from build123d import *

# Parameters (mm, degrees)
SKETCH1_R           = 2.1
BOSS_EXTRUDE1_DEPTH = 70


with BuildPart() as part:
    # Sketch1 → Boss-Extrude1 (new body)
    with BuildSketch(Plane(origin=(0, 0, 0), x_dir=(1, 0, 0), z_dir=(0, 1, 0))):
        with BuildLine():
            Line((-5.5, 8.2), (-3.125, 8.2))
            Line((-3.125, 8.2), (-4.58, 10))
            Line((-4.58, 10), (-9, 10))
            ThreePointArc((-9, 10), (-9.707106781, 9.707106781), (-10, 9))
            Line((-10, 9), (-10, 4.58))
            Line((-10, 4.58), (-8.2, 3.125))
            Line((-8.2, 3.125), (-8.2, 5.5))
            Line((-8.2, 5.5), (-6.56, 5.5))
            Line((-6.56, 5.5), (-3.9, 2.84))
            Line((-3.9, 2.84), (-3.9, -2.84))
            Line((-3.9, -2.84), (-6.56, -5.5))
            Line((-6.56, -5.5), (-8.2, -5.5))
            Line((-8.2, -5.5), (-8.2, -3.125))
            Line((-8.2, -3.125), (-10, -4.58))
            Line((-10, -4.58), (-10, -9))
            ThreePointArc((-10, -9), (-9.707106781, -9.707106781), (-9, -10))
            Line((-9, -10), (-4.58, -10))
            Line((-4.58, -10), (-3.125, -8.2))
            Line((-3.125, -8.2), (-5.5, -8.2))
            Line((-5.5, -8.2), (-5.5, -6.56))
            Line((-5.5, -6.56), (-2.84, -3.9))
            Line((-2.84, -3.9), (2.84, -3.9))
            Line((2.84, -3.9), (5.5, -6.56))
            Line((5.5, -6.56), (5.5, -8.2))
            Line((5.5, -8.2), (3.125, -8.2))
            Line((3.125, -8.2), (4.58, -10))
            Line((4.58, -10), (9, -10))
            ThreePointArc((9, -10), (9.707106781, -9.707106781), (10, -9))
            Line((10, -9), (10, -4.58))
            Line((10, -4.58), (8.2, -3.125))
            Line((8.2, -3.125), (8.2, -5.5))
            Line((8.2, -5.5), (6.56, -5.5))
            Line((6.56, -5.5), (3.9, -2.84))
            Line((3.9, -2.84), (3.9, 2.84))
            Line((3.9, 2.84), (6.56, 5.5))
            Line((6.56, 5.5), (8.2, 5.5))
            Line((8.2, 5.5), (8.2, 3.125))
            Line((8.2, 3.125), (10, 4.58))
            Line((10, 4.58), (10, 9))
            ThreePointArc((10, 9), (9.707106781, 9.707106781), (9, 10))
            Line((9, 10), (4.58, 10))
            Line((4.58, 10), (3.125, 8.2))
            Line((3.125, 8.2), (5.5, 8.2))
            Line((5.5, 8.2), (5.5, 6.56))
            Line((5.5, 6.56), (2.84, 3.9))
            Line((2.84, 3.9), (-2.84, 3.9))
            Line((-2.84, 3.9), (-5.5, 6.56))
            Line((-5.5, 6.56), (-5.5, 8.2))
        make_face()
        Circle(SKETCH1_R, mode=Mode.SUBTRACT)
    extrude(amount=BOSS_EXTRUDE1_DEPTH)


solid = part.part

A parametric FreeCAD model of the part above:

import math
import FreeCAD as App
import Part
import Sketcher
from FreeCAD import Vector
Q = App.Units.Quantity

doc = App.newDocument("Part")
params = doc.addObject("Spreadsheet::Sheet", "Params")
for row, (alias, value) in enumerate([
    ("sketch1_radius", "1 mm"),
    ("sketch1_diameter", "4.2 mm"),
    ("sketch1_width", "4.42 mm"),
    ("sketch1_width2", "1.64 mm"),
    ("sketch1_width3", "5.68 mm"),
    ("pad1_length", "70 mm"),
], start=1):
    params.set(f"A{row}", alias)
    params.set(f"B{row}", "=" + value)
    params.setAlias(f"B{row}", alias)

body = doc.addObject("PartDesign::Body", "Body")

# Sketch on XZ plane
sketch1 = body.newObject("Sketcher::SketchObject", "Sketch")
sketch1.AttachmentSupport = (doc.getObject("XZ_Plane"), [""])
sketch1.MapMode = "FlatFace"
sketch1.addGeometry(Part.LineSegment(Vector(-5.5, -8.2, 0), Vector(-3.125, -8.2, 0)), False)
sketch1.addGeometry(Part.LineSegment(Vector(-3.125, -8.2, 0), Vector(-4.58, -10, 0)), False)
sketch1.addGeometry(Part.LineSegment(Vector(-4.58, -10, 0), Vector(-9, -10, 0)), False)
sketch1.addGeometry(Part.ArcOfCircle(Part.Circle(Vector(-9, -9, 0), Vector(0, 0, 1), 1), math.radians(-180), math.radians(-90)), False)
sketch1.addGeometry(Part.LineSegment(Vector(-10, -9, 0), Vector(-10, -4.58, 0)), False)
sketch1.addGeometry(Part.LineSegment(Vector(-10, -4.58, 0), Vector(-8.2, -3.125, 0)), False)
sketch1.addGeometry(Part.LineSegment(Vector(-8.2, -3.125, 0), Vector(-8.2, -5.5, 0)), False)
sketch1.addGeometry(Part.LineSegment(Vector(-8.2, -5.5, 0), Vector(-6.56, -5.5, 0)), False)
sketch1.addGeometry(Part.LineSegment(Vector(-6.56, -5.5, 0), Vector(-3.9, -2.84, 0)), False)
sketch1.addGeometry(Part.LineSegment(Vector(-3.9, -2.84, 0), Vector(-3.9, 2.84, 0)), False)
sketch1.addGeometry(Part.LineSegment(Vector(-3.9, 2.84, 0), Vector(-6.56, 5.5, 0)), False)
sketch1.addGeometry(Part.LineSegment(Vector(-6.56, 5.5, 0), Vector(-8.2, 5.5, 0)), False)
sketch1.addGeometry(Part.LineSegment(Vector(-8.2, 5.5, 0), Vector(-8.2, 3.125, 0)), False)
sketch1.addGeometry(Part.LineSegment(Vector(-8.2, 3.125, 0), Vector(-10, 4.58, 0)), False)
sketch1.addGeometry(Part.LineSegment(Vector(-10, 4.58, 0), Vector(-10, 9, 0)), False)
sketch1.addGeometry(Part.ArcOfCircle(Part.Circle(Vector(-9, 9, 0), Vector(0, 0, 1), 1), math.radians(90), math.radians(180)), False)
sketch1.addGeometry(Part.LineSegment(Vector(-9, 10, 0), Vector(-4.58, 10, 0)), False)
sketch1.addGeometry(Part.LineSegment(Vector(-4.58, 10, 0), Vector(-3.125, 8.2, 0)), False)
sketch1.addGeometry(Part.LineSegment(Vector(-3.125, 8.2, 0), Vector(-5.5, 8.2, 0)), False)
sketch1.addGeometry(Part.LineSegment(Vector(-5.5, 8.2, 0), Vector(-5.5, 6.56, 0)), False)
sketch1.addGeometry(Part.LineSegment(Vector(-5.5, 6.56, 0), Vector(-2.84, 3.9, 0)), False)
sketch1.addGeometry(Part.LineSegment(Vector(-2.84, 3.9, 0), Vector(2.84, 3.9, 0)), False)
sketch1.addGeometry(Part.LineSegment(Vector(2.84, 3.9, 0), Vector(5.5, 6.56, 0)), False)
sketch1.addGeometry(Part.LineSegment(Vector(5.5, 6.56, 0), Vector(5.5, 8.2, 0)), False)
sketch1.addGeometry(Part.LineSegment(Vector(5.5, 8.2, 0), Vector(3.125, 8.2, 0)), False)
sketch1.addGeometry(Part.LineSegment(Vector(3.125, 8.2, 0), Vector(4.58, 10, 0)), False)
sketch1.addGeometry(Part.LineSegment(Vector(4.58, 10, 0), Vector(9, 10, 0)), False)
sketch1.addGeometry(Part.ArcOfCircle(Part.Circle(Vector(9, 9, 0), Vector(0, 0, 1), 1), math.radians(0), math.radians(90)), False)
sketch1.addGeometry(Part.LineSegment(Vector(10, 9, 0), Vector(10, 4.58, 0)), False)
sketch1.addGeometry(Part.LineSegment(Vector(10, 4.58, 0), Vector(8.2, 3.125, 0)), False)
sketch1.addGeometry(Part.LineSegment(Vector(8.2, 3.125, 0), Vector(8.2, 5.5, 0)), False)
sketch1.addGeometry(Part.LineSegment(Vector(8.2, 5.5, 0), Vector(6.56, 5.5, 0)), False)
sketch1.addGeometry(Part.LineSegment(Vector(6.56, 5.5, 0), Vector(3.9, 2.84, 0)), False)
sketch1.addGeometry(Part.LineSegment(Vector(3.9, 2.84, 0), Vector(3.9, -2.84, 0)), False)
sketch1.addGeometry(Part.LineSegment(Vector(3.9, -2.84, 0), Vector(6.56, -5.5, 0)), False)
sketch1.addGeometry(Part.LineSegment(Vector(6.56, -5.5, 0), Vector(8.2, -5.5, 0)), False)
sketch1.addGeometry(Part.LineSegment(Vector(8.2, -5.5, 0), Vector(8.2, -3.125, 0)), False)
sketch1.addGeometry(Part.LineSegment(Vector(8.2, -3.125, 0), Vector(10, -4.58, 0)), False)
sketch1.addGeometry(Part.LineSegment(Vector(10, -4.58, 0), Vector(10, -9, 0)), False)
sketch1.addGeometry(Part.ArcOfCircle(Part.Circle(Vector(9, -9, 0), Vector(0, 0, 1), 1), math.radians(-90), math.radians(0)), False)
sketch1.addGeometry(Part.LineSegment(Vector(9, -10, 0), Vector(4.58, -10, 0)), False)
sketch1.addGeometry(Part.LineSegment(Vector(4.58, -10, 0), Vector(3.125, -8.2, 0)), False)
sketch1.addGeometry(Part.LineSegment(Vector(3.125, -8.2, 0), Vector(5.5, -8.2, 0)), False)
sketch1.addGeometry(Part.LineSegment(Vector(5.5, -8.2, 0), Vector(5.5, -6.56, 0)), False)
sketch1.addGeometry(Part.LineSegment(Vector(5.5, -6.56, 0), Vector(2.84, -3.9, 0)), False)
sketch1.addGeometry(Part.LineSegment(Vector(2.84, -3.9, 0), Vector(-2.84, -3.9, 0)), False)
sketch1.addGeometry(Part.LineSegment(Vector(-2.84, -3.9, 0), Vector(-5.5, -6.56, 0)), False)
sketch1.addGeometry(Part.LineSegment(Vector(-5.5, -6.56, 0), Vector(-5.5, -8.2, 0)), False)
sketch1.addGeometry(Part.Circle(Vector(0, 0, 0), Vector(0, 0, 1), 2.1), False)
sketch1.addConstraint(Sketcher.Constraint("Coincident", 0, 2, 1, 1))
sketch1.addConstraint(Sketcher.Constraint("Coincident", 1, 2, 2, 1))
sketch1.addConstraint(Sketcher.Constraint("Tangent", 2, 2, 3, 2))
sketch1.addConstraint(Sketcher.Constraint("Tangent", 3, 1, 4, 1))
sketch1.addConstraint(Sketcher.Constraint("Coincident", 4, 2, 5, 1))
sketch1.addConstraint(Sketcher.Constraint("Coincident", 5, 2, 6, 1))
sketch1.addConstraint(Sketcher.Constraint("Coincident", 6, 2, 7, 1))
sketch1.addConstraint(Sketcher.Constraint("Coincident", 7, 2, 8, 1))
sketch1.addConstraint(Sketcher.Constraint("Coincident", 8, 2, 9, 1))
sketch1.addConstraint(Sketcher.Constraint("Coincident", 9, 2, 10, 1))
sketch1.addConstraint(Sketcher.Constraint("Coincident", 10, 2, 11, 1))
sketch1.addConstraint(Sketcher.Constraint("Coincident", 11, 2, 12, 1))
sketch1.addConstraint(Sketcher.Constraint("Coincident", 12, 2, 13, 1))
sketch1.addConstraint(Sketcher.Constraint("Coincident", 13, 2, 14, 1))
sketch1.addConstraint(Sketcher.Constraint("Tangent", 14, 2, 15, 2))
sketch1.addConstraint(Sketcher.Constraint("Tangent", 15, 1, 16, 1))
sketch1.addConstraint(Sketcher.Constraint("Coincident", 16, 2, 17, 1))
sketch1.addConstraint(Sketcher.Constraint("Coincident", 17, 2, 18, 1))
sketch1.addConstraint(Sketcher.Constraint("Coincident", 18, 2, 19, 1))
sketch1.addConstraint(Sketcher.Constraint("Coincident", 19, 2, 20, 1))
sketch1.addConstraint(Sketcher.Constraint("Coincident", 20, 2, 21, 1))
sketch1.addConstraint(Sketcher.Constraint("Coincident", 21, 2, 22, 1))
sketch1.addConstraint(Sketcher.Constraint("Coincident", 22, 2, 23, 1))
sketch1.addConstraint(Sketcher.Constraint("Coincident", 23, 2, 24, 1))
sketch1.addConstraint(Sketcher.Constraint("Coincident", 24, 2, 25, 1))
sketch1.addConstraint(Sketcher.Constraint("Coincident", 25, 2, 26, 1))
sketch1.addConstraint(Sketcher.Constraint("Tangent", 26, 2, 27, 2))
sketch1.addConstraint(Sketcher.Constraint("Tangent", 27, 1, 28, 1))
sketch1.addConstraint(Sketcher.Constraint("Coincident", 28, 2, 29, 1))
sketch1.addConstraint(Sketcher.Constraint("Coincident", 29, 2, 30, 1))
sketch1.addConstraint(Sketcher.Constraint("Coincident", 30, 2, 31, 1))
sketch1.addConstraint(Sketcher.Constraint("Coincident", 31, 2, 32, 1))
sketch1.addConstraint(Sketcher.Constraint("Coincident", 32, 2, 33, 1))
sketch1.addConstraint(Sketcher.Constraint("Coincident", 33, 2, 34, 1))
sketch1.addConstraint(Sketcher.Constraint("Coincident", 34, 2, 35, 1))
sketch1.addConstraint(Sketcher.Constraint("Coincident", 35, 2, 36, 1))
sketch1.addConstraint(Sketcher.Constraint("Coincident", 36, 2, 37, 1))
sketch1.addConstraint(Sketcher.Constraint("Coincident", 37, 2, 38, 1))
sketch1.addConstraint(Sketcher.Constraint("Tangent", 38, 2, 39, 2))
sketch1.addConstraint(Sketcher.Constraint("Tangent", 39, 1, 40, 1))
sketch1.addConstraint(Sketcher.Constraint("Coincident", 40, 2, 41, 1))
sketch1.addConstraint(Sketcher.Constraint("Coincident", 41, 2, 42, 1))
sketch1.addConstraint(Sketcher.Constraint("Coincident", 42, 2, 43, 1))
sketch1.addConstraint(Sketcher.Constraint("Coincident", 43, 2, 44, 1))
sketch1.addConstraint(Sketcher.Constraint("Coincident", 44, 2, 45, 1))
sketch1.addConstraint(Sketcher.Constraint("Coincident", 45, 2, 46, 1))
sketch1.addConstraint(Sketcher.Constraint("Coincident", 46, 2, 47, 1))
sketch1.addConstraint(Sketcher.Constraint("Coincident", 47, 2, 0, 1))
sketch1.addConstraint(Sketcher.Constraint("Horizontal", 0))
sketch1.addConstraint(Sketcher.Constraint("Horizontal", 2))
sketch1.addConstraint(Sketcher.Constraint("Vertical", 4))
sketch1.addConstraint(Sketcher.Constraint("Vertical", 6))
sketch1.addConstraint(Sketcher.Constraint("Horizontal", 7))
sketch1.addConstraint(Sketcher.Constraint("Vertical", 9))
sketch1.addConstraint(Sketcher.Constraint("Horizontal", 11))
sketch1.addConstraint(Sketcher.Constraint("Vertical", 12))
sketch1.addConstraint(Sketcher.Constraint("Vertical", 14))
sketch1.addConstraint(Sketcher.Constraint("Horizontal", 16))
sketch1.addConstraint(Sketcher.Constraint("Horizontal", 18))
sketch1.addConstraint(Sketcher.Constraint("Vertical", 19))
sketch1.addConstraint(Sketcher.Constraint("Horizontal", 21))
sketch1.addConstraint(Sketcher.Constraint("Vertical", 23))
sketch1.addConstraint(Sketcher.Constraint("Horizontal", 24))
sketch1.addConstraint(Sketcher.Constraint("Horizontal", 26))
sketch1.addConstraint(Sketcher.Constraint("Vertical", 28))
sketch1.addConstraint(Sketcher.Constraint("Vertical", 30))
sketch1.addConstraint(Sketcher.Constraint("Horizontal", 31))
sketch1.addConstraint(Sketcher.Constraint("Vertical", 33))
sketch1.addConstraint(Sketcher.Constraint("Horizontal", 35))
sketch1.addConstraint(Sketcher.Constraint("Vertical", 36))
sketch1.addConstraint(Sketcher.Constraint("Vertical", 38))
sketch1.addConstraint(Sketcher.Constraint("Horizontal", 40))
sketch1.addConstraint(Sketcher.Constraint("Horizontal", 42))
sketch1.addConstraint(Sketcher.Constraint("Vertical", 43))
sketch1.addConstraint(Sketcher.Constraint("Horizontal", 45))
sketch1.addConstraint(Sketcher.Constraint("Vertical", 47))
sketch1.addConstraint(Sketcher.Constraint("Coincident", 48, 3, -1, 1))
sketch1.addConstraint(Sketcher.Constraint("Equal", 3, 15))
sketch1.addConstraint(Sketcher.Constraint("Equal", 15, 27))
sketch1.addConstraint(Sketcher.Constraint("Equal", 27, 39))
sketch1.addConstraint(Sketcher.Constraint("Symmetric", 3, 3, 27, 3, -1, 1))
sketch1.addConstraint(Sketcher.Constraint("Symmetric", 15, 3, 39, 3, -1, 1))
sketch1.addConstraint(Sketcher.Constraint("Symmetric", 0, 2, 24, 2, -1, 1))
sketch1.addConstraint(Sketcher.Constraint("Symmetric", 5, 2, 29, 2, -1, 1))
sketch1.addConstraint(Sketcher.Constraint("Symmetric", 7, 2, 31, 2, -1, 1))
sketch1.addConstraint(Sketcher.Constraint("Symmetric", 8, 2, 32, 2, -1, 1))
sketch1.addConstraint(Sketcher.Constraint("Symmetric", 10, 2, 34, 2, -1, 1))
sketch1.addConstraint(Sketcher.Constraint("Symmetric", 12, 2, 36, 2, -1, 1))
sketch1.addConstraint(Sketcher.Constraint("Symmetric", 17, 2, 41, 2, -1, 1))
sketch1.addConstraint(Sketcher.Constraint("Symmetric", 19, 2, 43, 2, -1, 1))
sketch1.addConstraint(Sketcher.Constraint("Symmetric", 20, 2, 44, 2, -1, 1))
sketch1.addConstraint(Sketcher.Constraint("Symmetric", 22, 2, 46, 2, -1, 1))
sketch1.addConstraint(Sketcher.Constraint("Symmetric", 15, 3, 27, 3, -2))
sketch1.addConstraint(Sketcher.Constraint("Symmetric", 19, 2, 22, 2, -2))
sketch1.addConstraint(Sketcher.Constraint("Symmetric", 17, 2, 24, 2, -2))
sketch1.addConstraint(Sketcher.Constraint("Symmetric", 12, 2, 29, 2, -2))
sketch1.addConstraint(Sketcher.Constraint("Symmetric", 10, 2, 31, 2, -2))
sketch1.addConstraint(Sketcher.Constraint("Perpendicular", 8, 10))
sketch1.addConstraint(Sketcher.Constraint("Perpendicular", 1, 13))
sketch1.addConstraint(Sketcher.Constraint("Perpendicular", 5, 17))
sketch1.addConstraint(Sketcher.Constraint("Parallel", 10, 20))
sketch1.addConstraint(Sketcher.Constraint("Perpendicular", 20, 22))
sketch1.addConstraint(Sketcher.Constraint("Perpendicular", 13, 25))
sketch1.addConstraint(Sketcher.Constraint("Perpendicular", 17, 29))
sketch1.addConstraint(Sketcher.Constraint("Perpendicular", 32, 34))
sketch1.addConstraint(Sketcher.Constraint("Perpendicular", 25, 37))
sketch1.addConstraint(Sketcher.Constraint("Perpendicular", 29, 41))
sketch1.addConstraint(Sketcher.Constraint("Perpendicular", 44, 46))
sketch1.addConstraint(Sketcher.Constraint("Horizontal", 13, 2, 28, 2))
sketch1.addConstraint(Sketcher.Constraint("Horizontal", 9, 2, 32, 2))
sketch1.addConstraint(Sketcher.Constraint("Equal", 40, 4))
sketch1.addConstraint(Sketcher.Constraint("Equal", 42, 6))
sketch1.addConstraint(Sketcher.Constraint("Equal", 45, 9))
sketch1.addConstraint(Sketcher.Constraint("Equal", 35, 19))
sketch1.addConstraint(Sketcher.Constraint("Equal", 1, 5))
sketch1.addConstraint(Sketcher.Constraint("Equal", 10, 20))
sketch1.addConstraint(Sketcher.Constraint("Radius", 3, Q("1 mm")))
sketch1.addConstraint(Sketcher.Constraint("Diameter", 48, Q("4.2 mm")))
sketch1.addConstraint(Sketcher.Constraint("DistanceX", 3, 3, -1, 1, Q("9 mm")))
sketch1.addConstraint(Sketcher.Constraint("DistanceX", 2, 2, 2, 1, Q("4.42 mm")))
sketch1.addConstraint(Sketcher.Constraint("DistanceX", 7, 1, 7, 2, Q("1.64 mm")))
sketch1.addConstraint(Sketcher.Constraint("DistanceX", 21, 1, 21, 2, Q("5.68 mm")))
sketch1.addConstraint(Sketcher.Constraint("DistanceY", 0, 2, -1, 1, Q("8.2 mm")))
sketch1.addConstraint(Sketcher.Constraint("DistanceY", 6, 2, -1, 1, Q("5.5 mm")))
sketch1.addConstraint(Sketcher.Constraint("DistanceX", 0, 1, 0, 2, Q("2.375 mm")))
sketch1.setExpression("Constraints[116]", "Params.sketch1_radius")
sketch1.setExpression("Constraints[117]", "Params.sketch1_diameter")
sketch1.setExpression("Constraints[119]", "Params.sketch1_width")
sketch1.setExpression("Constraints[120]", "Params.sketch1_width2")
sketch1.setExpression("Constraints[121]", "Params.sketch1_width3")
pad1 = body.newObject("PartDesign::Pad", "Pad")
pad1.Profile = sketch1
pad1.setExpression("Length", "Params.pad1_length")
pad1.Reversed = True

doc.recompute()
